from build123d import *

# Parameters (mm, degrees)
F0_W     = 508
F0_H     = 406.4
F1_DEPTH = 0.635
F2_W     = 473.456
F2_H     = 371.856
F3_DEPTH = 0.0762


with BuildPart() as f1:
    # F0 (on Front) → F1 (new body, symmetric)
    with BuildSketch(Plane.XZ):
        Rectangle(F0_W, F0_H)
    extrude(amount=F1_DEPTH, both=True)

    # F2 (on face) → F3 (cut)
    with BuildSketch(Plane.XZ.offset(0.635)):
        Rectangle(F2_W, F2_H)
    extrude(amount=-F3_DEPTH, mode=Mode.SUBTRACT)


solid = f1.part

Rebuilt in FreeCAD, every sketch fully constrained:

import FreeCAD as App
import Part
import Sketcher
Q = App.Units.Quantity

doc = App.newDocument("Part")
body = doc.addObject("PartDesign::Body", "Body")

sketch1 = body.newObject("Sketcher::SketchObject", "Sketch")
sketch1.AttachmentSupport = (doc.getObject("XZ_Plane"), [""])
sketch1.MapMode = "FlatFace"
sketch1.addGeometry(Part.LineSegment(App.Vector(-254, 203, 0), App.Vector(-254, -203, 0)), False)
sketch1.addGeometry(Part.LineSegment(App.Vector(-254, -203, 0), App.Vector(254, -203, 0)), False)
sketch1.addGeometry(Part.LineSegment(App.Vector(254, -203, 0), App.Vector(254, 203, 0)), False)
sketch1.addGeometry(Part.LineSegment(App.Vector(254, 203, 0), App.Vector(-254, 203, 0)), False)
sketch1.addConstraint(Sketcher.Constraint("Coincident", 0, 2, 1, 1))
sketch1.addConstraint(Sketcher.Constraint("Coincident", 1, 2, 2, 1))
sketch1.addConstraint(Sketcher.Constraint("Coincident", 2, 2, 3, 1))
sketch1.addConstraint(Sketcher.Constraint("Coincident", 3, 2, 0, 1))
sketch1.addConstraint(Sketcher.Constraint("Vertical", 0))
sketch1.addConstraint(Sketcher.Constraint("Horizontal", 1))
sketch1.addConstraint(Sketcher.Constraint("Vertical", 2))
sketch1.addConstraint(Sketcher.Constraint("Horizontal", 3))
sketch1.addConstraint(Sketcher.Constraint("Symmetric", 0, 2, 2, 2, -1, 1))
sketch1.addConstraint(Sketcher.Constraint("DistanceX", 1, 1, 1, 2, Q("20 in")))
sketch1.addConstraint(Sketcher.Constraint("DistanceY", 0, 2, 0, 1, Q("16 in")))
pad1 = body.newObject("PartDesign::Pad", "Pad")
pad1.Profile = sketch1
pad1.Length = Q("0.05 in")
pad1.Midplane = True

sketch2 = body.newObject("Sketcher::SketchObject", "Sketch001")
sketch2.AttachmentSupport = (doc.getObject("XZ_Plane"), [""])
sketch2.MapMode = "FlatFace"
sketch2.AttachmentOffset = App.Placement(App.Vector(0, 0, 0.025 * 25.4), App.Rotation())
sketch2.addGeometry(Part.LineSegment(App.Vector(-237, 186, 0), App.Vector(-237, -186, 0)), False)
sketch2.addGeometry(Part.LineSegment(App.Vector(-237, -186, 0), App.Vector(237, -186, 0)), False)
sketch2.addGeometry(Part.LineSegment(App.Vector(237, -186, 0), App.Vector(237, 186, 0)), False)
sketch2.addGeometry(Part.LineSegment(App.Vector(237, 186, 0), App.Vector(-237, 186, 0)), False)
sketch2.addConstraint(Sketcher.Constraint("Coincident", 0, 2, 1, 1))
sketch2.addConstraint(Sketcher.Constraint("Coincident", 1, 2, 2, 1))
sketch2.addConstraint(Sketcher.Constraint("Coincident", 2, 2, 3, 1))
sketch2.addConstraint(Sketcher.Constraint("Coincident", 3, 2, 0, 1))
sketch2.addConstraint(Sketcher.Constraint("Vertical", 0))
sketch2.addConstraint(Sketcher.Constraint("Horizontal", 1))
sketch2.addConstraint(Sketcher.Constraint("Vertical", 2))
sketch2.addConstraint(Sketcher.Constraint("Horizontal", 3))
sketch2.addConstraint(Sketcher.Constraint("Symmetric", 0, 2, 2, 2, -1, 1))
sketch2.addConstraint(Sketcher.Constraint("DistanceX", 1, 1, 1, 2, Q("18.64 in")))
sketch2.addConstraint(Sketcher.Constraint("DistanceY", 0, 2, 0, 1, Q("14.64 in")))
pocket1 = body.newObject("PartDesign::Pocket", "Pocket")
pocket1.Profile = sketch2
pocket1.Length = Q("0.003 in")

doc.recompute()
